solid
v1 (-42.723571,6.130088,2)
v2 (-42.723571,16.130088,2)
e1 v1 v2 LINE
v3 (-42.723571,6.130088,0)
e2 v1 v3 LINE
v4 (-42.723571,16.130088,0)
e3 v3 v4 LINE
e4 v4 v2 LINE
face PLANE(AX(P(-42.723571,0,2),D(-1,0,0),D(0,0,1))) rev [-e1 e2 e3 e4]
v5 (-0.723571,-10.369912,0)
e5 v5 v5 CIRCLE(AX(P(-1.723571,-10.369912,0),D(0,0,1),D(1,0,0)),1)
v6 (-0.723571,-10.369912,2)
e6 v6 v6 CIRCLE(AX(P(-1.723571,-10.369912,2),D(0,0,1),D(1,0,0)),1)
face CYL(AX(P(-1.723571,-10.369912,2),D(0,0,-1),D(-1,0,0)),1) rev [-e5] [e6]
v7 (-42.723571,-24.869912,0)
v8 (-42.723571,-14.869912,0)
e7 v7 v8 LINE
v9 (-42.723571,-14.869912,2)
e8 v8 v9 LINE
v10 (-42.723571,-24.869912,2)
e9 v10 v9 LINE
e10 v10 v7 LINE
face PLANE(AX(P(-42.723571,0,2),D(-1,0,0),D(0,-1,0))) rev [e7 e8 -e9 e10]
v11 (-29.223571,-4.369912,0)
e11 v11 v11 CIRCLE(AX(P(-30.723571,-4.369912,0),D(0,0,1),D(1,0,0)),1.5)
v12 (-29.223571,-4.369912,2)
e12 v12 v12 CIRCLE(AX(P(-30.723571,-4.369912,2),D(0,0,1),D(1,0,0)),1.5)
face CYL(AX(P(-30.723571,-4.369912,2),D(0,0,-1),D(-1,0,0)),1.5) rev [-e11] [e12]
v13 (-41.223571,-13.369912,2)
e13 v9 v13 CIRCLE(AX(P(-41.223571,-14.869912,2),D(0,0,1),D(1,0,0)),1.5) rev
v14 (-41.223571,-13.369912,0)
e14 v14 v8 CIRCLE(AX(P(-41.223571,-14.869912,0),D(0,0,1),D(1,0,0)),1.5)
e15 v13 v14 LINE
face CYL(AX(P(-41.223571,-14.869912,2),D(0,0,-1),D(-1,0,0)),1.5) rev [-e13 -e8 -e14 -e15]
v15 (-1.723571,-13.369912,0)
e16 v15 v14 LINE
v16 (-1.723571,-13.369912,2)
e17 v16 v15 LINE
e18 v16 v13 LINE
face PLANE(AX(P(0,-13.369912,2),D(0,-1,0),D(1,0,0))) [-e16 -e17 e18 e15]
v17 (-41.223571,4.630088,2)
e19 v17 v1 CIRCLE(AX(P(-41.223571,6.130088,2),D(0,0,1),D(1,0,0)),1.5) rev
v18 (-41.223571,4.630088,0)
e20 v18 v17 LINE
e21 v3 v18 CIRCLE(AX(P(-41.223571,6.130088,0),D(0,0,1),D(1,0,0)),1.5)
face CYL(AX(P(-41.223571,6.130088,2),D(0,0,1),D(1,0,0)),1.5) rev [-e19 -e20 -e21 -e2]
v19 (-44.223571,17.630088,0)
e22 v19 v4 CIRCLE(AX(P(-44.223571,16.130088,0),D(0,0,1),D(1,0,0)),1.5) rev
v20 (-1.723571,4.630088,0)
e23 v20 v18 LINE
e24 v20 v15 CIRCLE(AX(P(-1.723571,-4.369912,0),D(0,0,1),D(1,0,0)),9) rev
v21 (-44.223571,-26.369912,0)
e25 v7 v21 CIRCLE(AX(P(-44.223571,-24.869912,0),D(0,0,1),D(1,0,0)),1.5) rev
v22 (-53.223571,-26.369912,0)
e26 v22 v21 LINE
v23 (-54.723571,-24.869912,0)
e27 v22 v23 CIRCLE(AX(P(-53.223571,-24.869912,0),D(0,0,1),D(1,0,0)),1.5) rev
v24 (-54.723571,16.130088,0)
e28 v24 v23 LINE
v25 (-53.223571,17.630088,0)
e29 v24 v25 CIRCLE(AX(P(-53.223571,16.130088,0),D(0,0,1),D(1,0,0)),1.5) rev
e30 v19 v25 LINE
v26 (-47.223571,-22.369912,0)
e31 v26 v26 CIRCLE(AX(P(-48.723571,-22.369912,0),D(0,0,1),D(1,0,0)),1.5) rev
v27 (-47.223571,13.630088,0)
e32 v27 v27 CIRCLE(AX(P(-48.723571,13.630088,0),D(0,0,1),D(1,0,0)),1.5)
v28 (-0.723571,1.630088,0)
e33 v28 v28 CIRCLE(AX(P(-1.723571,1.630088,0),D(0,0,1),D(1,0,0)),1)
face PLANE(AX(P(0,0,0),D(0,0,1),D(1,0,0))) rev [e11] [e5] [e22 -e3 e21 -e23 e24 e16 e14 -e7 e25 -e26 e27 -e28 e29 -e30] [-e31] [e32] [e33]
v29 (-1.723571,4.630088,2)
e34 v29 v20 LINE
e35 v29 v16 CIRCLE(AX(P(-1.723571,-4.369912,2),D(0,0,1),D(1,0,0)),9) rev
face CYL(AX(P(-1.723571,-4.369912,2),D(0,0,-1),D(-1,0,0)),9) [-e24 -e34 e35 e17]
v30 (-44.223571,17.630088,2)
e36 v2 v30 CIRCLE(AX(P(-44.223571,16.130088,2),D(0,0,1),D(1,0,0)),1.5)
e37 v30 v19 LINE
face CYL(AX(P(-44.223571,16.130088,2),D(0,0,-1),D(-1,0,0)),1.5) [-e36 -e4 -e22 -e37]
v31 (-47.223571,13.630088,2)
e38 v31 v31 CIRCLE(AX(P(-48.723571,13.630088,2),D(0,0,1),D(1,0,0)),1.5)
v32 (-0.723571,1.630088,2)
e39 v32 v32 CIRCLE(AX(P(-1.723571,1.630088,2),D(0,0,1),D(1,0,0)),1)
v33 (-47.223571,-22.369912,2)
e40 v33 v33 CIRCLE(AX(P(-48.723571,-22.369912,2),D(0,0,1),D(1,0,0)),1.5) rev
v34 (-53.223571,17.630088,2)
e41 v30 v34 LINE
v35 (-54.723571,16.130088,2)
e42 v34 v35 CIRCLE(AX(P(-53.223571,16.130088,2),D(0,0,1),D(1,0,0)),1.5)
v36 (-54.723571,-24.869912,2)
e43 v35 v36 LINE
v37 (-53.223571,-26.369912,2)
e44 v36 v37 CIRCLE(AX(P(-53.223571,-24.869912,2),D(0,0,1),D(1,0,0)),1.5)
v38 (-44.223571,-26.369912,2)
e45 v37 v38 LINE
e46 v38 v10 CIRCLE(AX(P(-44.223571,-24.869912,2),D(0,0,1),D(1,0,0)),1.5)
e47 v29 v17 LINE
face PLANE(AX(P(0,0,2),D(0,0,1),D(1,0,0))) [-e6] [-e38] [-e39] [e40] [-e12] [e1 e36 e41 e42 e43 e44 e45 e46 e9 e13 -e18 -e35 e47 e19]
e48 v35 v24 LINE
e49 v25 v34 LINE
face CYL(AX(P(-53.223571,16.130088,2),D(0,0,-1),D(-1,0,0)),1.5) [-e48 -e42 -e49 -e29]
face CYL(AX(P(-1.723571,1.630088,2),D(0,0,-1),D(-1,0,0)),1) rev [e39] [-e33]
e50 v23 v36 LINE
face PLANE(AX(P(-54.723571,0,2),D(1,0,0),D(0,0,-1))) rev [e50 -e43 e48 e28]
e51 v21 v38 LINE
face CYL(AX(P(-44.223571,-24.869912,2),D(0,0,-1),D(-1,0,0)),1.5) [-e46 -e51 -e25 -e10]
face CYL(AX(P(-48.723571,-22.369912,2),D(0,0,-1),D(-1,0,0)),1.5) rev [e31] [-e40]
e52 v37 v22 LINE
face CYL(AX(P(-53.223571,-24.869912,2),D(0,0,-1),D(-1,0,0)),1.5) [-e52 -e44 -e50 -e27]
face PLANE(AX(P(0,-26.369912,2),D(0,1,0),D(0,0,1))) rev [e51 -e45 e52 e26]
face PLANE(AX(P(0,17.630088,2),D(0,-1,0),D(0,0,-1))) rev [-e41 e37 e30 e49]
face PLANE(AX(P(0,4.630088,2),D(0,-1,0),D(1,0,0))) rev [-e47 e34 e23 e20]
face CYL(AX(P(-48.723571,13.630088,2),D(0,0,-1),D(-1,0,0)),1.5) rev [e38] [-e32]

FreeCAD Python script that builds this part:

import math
import FreeCAD as App
import Part
import Sketcher
from FreeCAD import Vector
Q = App.Units.Quantity


def edges_at(feature, points):
    """Names of the edges that pass closest to the given points."""
    edges = feature.Shape.Edges
    near = lambda p: min(range(len(edges)), key=lambda i: edges[i].distToShape(Part.Vertex(*p))[0])
    return sorted({f"Edge{near(p) + 1}" for p in points})

doc = App.newDocument("Part")
body = doc.addObject("PartDesign::Body", "Body")

sketch1 = body.newObject("Sketcher::SketchObject", "Sketch")
sketch1.AttachmentSupport = (doc.getObject("XY_Plane"), [""])
sketch1.MapMode = "FlatFace"
sketch1.addGeometry([
    Part.LineSegment(Vector(-42.723571, -13.369912, 0), Vector(-1.723571, -13.369912, 0)),
    Part.ArcOfCircle(Part.Circle(Vector(-1.723571, -4.369912, 0), Vector(0, 0, 1), 9), math.radians(-90), math.radians(90)),
    Part.LineSegment(Vector(-1.723571, 4.630088, 0), Vector(-42.723571, 4.630088, 0)),
    Part.LineSegment(Vector(-42.723571, 4.630088, 0), Vector(-42.723571, 17.630088, 0)),
    Part.LineSegment(Vector(-42.723571, 17.630088, 0), Vector(-54.723571, 17.630088, 0)),
    Part.LineSegment(Vector(-54.723571, 17.630088, 0), Vector(-54.723571, -26.369912, 0)),
    Part.LineSegment(Vector(-54.723571, -26.369912, 0), Vector(-42.723571, -26.369912, 0)),
    Part.LineSegment(Vector(-42.723571, -26.369912, 0), Vector(-42.723571, -13.369912, 0)),
    Part.Circle(Vector(-1.723571, -10.369912, 0), Vector(0, 0, 1), 1),
    Part.Circle(Vector(-48.723571, -22.369912, 0), Vector(0, 0, 1), 1.5),
    Part.Circle(Vector(-1.723571, 1.630088, 0), Vector(0, 0, 1), 1),
    Part.Circle(Vector(-30.723571, -4.369912, 0), Vector(0, 0, 1), 1.5),
    Part.Circle(Vector(-48.723571, 13.630088, 0), Vector(0, 0, 1), 1.5),
], False)
sketch1.addConstraint([
    Sketcher.Constraint("Tangent", 0, 2, 1, 1),
    Sketcher.Constraint("Tangent", 1, 2, 2, 1),
    Sketcher.Constraint("Coincident", 2, 2, 3, 1),
    Sketcher.Constraint("Coincident", 3, 2, 4, 1),
    Sketcher.Constraint("Coincident", 4, 2, 5, 1),
    Sketcher.Constraint("Coincident", 5, 2, 6, 1),
    Sketcher.Constraint("Coincident", 6, 2, 7, 1),
    Sketcher.Constraint("Coincident", 7, 2, 0, 1),
    Sketcher.Constraint("Horizontal", 0),
    Sketcher.Constraint("Horizontal", 2),
    Sketcher.Constraint("Vertical", 3),
    Sketcher.Constraint("Horizontal", 4),
    Sketcher.Constraint("Vertical", 5),
    Sketcher.Constraint("Horizontal", 6),
    Sketcher.Constraint("Vertical", 7),
    Sketcher.Constraint("Equal", 8, 10),
    Sketcher.Constraint("Equal", 9, 11),
    Sketcher.Constraint("Equal", 11, 12),
    Sketcher.Constraint("Horizontal", 1, 3, 11, 3),
    Sketcher.Constraint("Vertical", 1, 3, 8, 3),
    Sketcher.Constraint("Vertical", 8, 3, 10, 3),
    Sketcher.Constraint("Vertical", 9, 3, 12, 3),
    Sketcher.Constraint("Vertical", 3, 2, 6, 2),
    Sketcher.Constraint("Equal", 3, 7),
    Sketcher.Constraint("Diameter", 8, Q("2 mm")),
    Sketcher.Constraint("Diameter", 9, Q("3 mm")),
    Sketcher.Constraint("Radius", 1, Q("9 mm")),
    Sketcher.Constraint("DistanceX", 0, 1, 0, 2, Q("41 mm")),
    Sketcher.Constraint("DistanceX", 4, 2, 4, 1, Q("12 mm")),
    Sketcher.Constraint("DistanceY", 3, 1, 3, 2, Q("13 mm")),
    Sketcher.Constraint("DistanceY", 8, 3, 1, 3, Q("6 mm")),
    Sketcher.Constraint("DistanceX", 9, 3, 8, 3, Q("47 mm")),
    Sketcher.Constraint("DistanceY", 9, 3, 8, 3, Q("12 mm")),
    Sketcher.Constraint("DistanceY", 1, 3, 10, 3, Q("6 mm")),
    Sketcher.Constraint("DistanceX", 9, 3, 11, 3, Q("18 mm")),
    Sketcher.Constraint("DistanceY", 11, 3, 12, 3, Q("18 mm")),
    Sketcher.Constraint("DistanceX", 1, 3, -1, 1, Q("1.723571 mm")),
    Sketcher.Constraint("DistanceY", 1, 3, -1, 1, Q("4.369912 mm")),
])
pad1 = body.newObject("PartDesign::Pad", "Pad")
pad1.Profile = sketch1
pad1.Length = 2
doc.recompute()

fillet = body.newObject("PartDesign::Fillet", "Fillet")
fillet.Base = (pad1, edges_at(pad1, [
    (-42.724, -13.37, 1),
    (-42.724, -26.37, 1),
    (-54.724, -26.37, 1),
    (-54.724, 17.63, 1),
    (-42.724, 17.63, 1),
    (-42.724, 4.63, 1),
]))
fillet.Radius = 1.5

doc.recompute()
